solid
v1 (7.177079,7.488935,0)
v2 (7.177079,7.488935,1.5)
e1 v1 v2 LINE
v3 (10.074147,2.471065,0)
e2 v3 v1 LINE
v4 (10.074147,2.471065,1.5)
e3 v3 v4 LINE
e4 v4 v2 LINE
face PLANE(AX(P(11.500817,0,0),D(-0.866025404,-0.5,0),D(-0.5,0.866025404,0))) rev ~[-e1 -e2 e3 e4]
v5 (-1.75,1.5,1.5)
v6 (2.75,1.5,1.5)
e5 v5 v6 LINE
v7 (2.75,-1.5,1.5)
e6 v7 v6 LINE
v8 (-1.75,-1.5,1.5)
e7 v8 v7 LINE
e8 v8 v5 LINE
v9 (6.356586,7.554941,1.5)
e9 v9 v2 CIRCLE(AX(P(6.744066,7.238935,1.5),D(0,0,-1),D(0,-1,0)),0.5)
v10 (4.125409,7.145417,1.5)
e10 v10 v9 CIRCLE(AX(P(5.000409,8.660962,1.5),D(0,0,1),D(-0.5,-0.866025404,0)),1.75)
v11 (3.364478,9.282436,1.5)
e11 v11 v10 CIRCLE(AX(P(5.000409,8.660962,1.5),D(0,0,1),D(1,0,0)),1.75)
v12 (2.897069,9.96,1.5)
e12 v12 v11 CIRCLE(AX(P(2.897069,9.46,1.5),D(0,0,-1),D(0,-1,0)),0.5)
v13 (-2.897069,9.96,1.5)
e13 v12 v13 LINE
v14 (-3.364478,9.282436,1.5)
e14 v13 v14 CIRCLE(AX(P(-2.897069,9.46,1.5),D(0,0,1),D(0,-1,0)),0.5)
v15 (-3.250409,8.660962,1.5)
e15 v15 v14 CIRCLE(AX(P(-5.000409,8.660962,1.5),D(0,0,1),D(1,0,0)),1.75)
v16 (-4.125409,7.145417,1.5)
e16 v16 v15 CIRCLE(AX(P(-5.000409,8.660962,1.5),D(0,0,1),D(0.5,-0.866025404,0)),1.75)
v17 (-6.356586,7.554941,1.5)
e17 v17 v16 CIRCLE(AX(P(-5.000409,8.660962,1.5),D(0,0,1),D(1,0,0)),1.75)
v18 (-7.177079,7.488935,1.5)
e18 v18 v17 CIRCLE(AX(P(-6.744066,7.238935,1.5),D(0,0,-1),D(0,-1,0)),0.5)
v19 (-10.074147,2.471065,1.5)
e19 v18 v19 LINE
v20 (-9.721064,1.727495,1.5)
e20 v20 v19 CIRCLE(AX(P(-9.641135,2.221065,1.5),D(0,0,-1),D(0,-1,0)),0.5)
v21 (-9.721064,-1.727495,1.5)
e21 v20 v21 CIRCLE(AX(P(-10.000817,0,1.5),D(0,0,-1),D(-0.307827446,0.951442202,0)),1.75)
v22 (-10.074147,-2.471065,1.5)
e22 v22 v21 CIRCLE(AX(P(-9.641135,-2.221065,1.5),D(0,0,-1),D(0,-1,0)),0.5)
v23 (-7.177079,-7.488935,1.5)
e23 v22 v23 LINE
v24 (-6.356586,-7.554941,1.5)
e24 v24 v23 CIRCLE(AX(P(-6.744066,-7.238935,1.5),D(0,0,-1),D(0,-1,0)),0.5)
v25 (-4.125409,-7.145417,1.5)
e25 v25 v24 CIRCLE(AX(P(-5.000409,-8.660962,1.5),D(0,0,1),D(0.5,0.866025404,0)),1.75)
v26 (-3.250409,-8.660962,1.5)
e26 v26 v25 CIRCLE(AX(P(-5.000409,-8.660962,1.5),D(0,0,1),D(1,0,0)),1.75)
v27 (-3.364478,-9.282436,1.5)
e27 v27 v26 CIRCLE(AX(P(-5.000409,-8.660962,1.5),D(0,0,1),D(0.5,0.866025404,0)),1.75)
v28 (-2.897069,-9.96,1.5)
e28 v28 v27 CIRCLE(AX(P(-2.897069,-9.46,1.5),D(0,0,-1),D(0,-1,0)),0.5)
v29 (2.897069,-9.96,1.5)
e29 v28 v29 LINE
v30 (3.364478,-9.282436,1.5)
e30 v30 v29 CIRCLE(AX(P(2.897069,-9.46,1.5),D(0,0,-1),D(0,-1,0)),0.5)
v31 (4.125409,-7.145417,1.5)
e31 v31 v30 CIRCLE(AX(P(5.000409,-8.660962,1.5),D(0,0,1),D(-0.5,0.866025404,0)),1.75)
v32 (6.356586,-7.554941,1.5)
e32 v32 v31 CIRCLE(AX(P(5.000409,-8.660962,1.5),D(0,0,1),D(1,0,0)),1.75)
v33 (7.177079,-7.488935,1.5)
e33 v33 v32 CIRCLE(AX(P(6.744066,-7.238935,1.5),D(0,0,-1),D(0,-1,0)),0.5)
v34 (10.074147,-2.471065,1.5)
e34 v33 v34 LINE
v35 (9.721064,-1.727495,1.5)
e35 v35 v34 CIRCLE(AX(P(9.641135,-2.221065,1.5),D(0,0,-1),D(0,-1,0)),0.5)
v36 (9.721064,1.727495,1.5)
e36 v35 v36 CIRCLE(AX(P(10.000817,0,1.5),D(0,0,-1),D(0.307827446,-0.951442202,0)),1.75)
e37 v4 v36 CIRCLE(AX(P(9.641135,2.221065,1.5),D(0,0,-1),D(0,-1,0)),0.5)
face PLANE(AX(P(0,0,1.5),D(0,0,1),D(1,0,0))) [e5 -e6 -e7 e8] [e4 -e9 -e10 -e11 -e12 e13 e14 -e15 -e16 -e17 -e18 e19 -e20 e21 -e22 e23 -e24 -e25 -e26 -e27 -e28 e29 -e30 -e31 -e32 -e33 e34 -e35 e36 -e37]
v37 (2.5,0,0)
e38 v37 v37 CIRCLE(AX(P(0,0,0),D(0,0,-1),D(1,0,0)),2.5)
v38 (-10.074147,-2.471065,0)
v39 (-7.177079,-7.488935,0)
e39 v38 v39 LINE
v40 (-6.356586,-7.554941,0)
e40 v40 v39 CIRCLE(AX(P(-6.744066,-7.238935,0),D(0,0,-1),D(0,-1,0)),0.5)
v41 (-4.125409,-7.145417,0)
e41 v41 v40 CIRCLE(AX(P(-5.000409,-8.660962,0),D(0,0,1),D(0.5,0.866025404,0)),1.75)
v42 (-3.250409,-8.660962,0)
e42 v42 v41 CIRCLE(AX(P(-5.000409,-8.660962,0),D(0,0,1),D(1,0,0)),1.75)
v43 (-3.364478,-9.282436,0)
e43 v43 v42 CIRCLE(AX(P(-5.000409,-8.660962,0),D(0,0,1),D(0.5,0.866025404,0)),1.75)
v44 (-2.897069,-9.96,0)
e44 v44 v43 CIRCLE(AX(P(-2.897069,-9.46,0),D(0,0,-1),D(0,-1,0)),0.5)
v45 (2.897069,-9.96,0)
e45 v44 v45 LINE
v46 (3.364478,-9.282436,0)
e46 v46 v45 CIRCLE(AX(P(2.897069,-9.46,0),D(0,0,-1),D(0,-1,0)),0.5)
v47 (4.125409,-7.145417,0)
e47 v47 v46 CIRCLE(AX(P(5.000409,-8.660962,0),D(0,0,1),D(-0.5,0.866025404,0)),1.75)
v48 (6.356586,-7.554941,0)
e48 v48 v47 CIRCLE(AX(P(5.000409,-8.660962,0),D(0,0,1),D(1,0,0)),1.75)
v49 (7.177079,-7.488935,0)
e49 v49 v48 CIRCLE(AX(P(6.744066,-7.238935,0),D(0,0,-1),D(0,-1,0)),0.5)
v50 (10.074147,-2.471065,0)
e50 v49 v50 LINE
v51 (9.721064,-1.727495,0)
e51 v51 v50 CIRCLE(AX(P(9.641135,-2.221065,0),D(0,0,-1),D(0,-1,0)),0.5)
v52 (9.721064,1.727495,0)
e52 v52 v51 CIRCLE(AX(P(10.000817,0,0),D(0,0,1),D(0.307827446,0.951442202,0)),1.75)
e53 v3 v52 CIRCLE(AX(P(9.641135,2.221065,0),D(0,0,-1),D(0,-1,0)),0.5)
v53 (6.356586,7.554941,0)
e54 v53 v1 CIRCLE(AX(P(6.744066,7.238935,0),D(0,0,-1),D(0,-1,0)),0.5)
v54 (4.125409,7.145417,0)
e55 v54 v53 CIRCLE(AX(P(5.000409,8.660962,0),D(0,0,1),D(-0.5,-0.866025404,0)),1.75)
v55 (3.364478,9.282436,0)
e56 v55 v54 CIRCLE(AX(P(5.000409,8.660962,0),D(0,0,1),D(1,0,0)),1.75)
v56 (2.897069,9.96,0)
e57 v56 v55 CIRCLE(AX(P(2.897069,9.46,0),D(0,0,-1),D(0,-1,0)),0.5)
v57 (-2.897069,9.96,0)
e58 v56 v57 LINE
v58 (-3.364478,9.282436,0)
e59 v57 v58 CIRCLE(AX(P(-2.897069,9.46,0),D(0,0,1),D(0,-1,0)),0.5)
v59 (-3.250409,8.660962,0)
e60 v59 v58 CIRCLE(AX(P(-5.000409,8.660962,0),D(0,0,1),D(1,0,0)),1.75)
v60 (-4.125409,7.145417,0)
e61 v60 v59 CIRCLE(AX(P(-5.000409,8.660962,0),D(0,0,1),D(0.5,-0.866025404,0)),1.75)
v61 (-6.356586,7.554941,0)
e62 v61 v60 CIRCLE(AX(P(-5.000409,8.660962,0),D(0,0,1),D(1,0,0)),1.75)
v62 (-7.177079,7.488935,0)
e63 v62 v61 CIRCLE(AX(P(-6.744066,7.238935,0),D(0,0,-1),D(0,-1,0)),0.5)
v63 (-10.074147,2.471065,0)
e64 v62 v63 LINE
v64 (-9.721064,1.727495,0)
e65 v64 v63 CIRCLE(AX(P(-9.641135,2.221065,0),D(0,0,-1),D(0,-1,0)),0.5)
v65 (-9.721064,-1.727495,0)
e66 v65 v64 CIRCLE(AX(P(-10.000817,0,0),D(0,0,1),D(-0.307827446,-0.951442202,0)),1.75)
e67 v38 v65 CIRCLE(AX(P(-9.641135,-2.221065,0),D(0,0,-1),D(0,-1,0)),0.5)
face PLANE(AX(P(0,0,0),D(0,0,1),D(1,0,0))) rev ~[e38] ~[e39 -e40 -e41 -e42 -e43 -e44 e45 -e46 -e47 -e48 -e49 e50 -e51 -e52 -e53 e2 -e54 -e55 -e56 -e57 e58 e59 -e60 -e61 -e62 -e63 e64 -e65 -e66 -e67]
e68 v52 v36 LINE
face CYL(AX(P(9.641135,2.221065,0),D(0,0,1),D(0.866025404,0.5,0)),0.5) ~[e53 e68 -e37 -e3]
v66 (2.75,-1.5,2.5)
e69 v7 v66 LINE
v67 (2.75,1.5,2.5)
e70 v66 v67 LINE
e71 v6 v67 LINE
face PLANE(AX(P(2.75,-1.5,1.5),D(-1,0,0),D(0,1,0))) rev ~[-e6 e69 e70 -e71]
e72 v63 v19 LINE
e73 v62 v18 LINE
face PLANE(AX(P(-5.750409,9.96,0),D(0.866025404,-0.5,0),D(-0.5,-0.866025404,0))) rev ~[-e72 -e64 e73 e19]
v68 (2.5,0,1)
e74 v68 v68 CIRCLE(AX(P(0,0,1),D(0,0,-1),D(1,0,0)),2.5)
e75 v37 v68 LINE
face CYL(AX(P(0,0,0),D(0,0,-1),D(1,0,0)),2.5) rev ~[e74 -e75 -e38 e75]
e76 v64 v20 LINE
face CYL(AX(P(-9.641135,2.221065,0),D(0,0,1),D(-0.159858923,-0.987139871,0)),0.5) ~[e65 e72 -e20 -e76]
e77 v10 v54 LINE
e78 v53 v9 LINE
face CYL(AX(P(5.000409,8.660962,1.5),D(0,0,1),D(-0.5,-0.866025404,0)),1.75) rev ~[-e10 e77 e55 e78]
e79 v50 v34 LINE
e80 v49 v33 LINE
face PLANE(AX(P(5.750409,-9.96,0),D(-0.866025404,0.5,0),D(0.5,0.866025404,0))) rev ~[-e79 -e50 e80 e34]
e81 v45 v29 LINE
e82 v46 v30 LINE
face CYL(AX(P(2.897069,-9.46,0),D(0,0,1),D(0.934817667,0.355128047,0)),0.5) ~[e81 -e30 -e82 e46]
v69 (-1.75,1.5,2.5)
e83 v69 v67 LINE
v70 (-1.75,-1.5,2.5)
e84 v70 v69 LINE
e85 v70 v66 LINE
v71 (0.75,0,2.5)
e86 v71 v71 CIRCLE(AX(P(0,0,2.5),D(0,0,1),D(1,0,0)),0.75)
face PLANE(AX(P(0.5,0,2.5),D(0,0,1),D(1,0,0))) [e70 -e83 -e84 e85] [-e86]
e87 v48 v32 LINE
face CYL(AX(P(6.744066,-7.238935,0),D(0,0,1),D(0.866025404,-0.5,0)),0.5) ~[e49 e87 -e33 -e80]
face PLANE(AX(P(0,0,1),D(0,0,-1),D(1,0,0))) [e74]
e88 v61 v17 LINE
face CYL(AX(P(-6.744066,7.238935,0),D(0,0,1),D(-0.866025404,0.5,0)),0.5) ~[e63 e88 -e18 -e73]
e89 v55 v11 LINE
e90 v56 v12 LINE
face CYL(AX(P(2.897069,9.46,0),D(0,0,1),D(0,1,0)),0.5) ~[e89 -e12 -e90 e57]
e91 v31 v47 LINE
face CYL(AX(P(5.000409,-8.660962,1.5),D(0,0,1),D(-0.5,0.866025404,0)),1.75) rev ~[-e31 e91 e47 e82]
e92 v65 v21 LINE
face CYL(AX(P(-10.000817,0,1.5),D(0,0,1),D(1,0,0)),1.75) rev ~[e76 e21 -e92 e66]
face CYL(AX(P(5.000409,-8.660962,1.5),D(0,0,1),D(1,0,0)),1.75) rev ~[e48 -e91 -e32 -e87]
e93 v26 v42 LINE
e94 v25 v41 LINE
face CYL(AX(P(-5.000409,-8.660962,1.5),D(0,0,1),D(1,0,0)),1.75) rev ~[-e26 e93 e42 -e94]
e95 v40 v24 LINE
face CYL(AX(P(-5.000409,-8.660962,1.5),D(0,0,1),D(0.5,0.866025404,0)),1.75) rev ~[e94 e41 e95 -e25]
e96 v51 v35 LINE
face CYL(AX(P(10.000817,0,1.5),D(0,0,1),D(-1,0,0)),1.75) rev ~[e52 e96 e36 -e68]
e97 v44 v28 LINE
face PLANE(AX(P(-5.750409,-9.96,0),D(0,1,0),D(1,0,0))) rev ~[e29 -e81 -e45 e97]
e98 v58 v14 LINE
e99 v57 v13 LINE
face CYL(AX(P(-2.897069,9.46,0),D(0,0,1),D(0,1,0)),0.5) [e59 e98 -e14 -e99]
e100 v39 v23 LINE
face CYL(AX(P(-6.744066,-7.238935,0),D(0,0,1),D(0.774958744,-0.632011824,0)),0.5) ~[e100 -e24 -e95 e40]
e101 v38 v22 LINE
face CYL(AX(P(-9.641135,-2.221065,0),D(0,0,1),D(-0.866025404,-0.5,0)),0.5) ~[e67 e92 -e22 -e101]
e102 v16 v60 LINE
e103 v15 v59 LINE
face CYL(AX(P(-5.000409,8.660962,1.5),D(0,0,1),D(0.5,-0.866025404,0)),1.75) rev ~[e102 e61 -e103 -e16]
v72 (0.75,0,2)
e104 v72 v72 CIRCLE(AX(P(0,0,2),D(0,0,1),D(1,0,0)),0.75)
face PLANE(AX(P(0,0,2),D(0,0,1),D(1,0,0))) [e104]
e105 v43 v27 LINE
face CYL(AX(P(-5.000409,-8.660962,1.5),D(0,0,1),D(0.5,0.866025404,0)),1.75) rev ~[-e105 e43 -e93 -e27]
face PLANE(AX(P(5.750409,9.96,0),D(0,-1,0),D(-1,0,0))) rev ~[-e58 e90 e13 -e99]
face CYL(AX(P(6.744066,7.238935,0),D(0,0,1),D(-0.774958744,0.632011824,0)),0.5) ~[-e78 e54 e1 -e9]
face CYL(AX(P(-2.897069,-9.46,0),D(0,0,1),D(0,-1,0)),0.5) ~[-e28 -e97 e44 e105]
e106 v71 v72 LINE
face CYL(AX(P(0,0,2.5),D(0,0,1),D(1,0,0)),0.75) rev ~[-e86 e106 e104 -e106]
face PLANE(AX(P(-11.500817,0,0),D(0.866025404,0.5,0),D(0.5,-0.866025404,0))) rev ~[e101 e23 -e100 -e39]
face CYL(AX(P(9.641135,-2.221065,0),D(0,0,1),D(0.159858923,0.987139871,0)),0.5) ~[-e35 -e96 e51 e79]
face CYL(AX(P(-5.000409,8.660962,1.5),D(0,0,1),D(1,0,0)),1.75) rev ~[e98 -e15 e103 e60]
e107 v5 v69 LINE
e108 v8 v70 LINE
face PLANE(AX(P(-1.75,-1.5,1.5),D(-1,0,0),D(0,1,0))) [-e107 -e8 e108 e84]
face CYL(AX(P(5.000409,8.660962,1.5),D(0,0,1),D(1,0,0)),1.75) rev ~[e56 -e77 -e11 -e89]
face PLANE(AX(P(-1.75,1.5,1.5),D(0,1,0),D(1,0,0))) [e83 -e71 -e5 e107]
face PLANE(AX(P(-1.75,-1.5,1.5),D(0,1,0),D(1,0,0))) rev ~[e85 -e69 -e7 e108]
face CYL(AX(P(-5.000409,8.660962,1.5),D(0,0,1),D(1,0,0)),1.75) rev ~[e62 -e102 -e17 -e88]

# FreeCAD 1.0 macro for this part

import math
import FreeCAD as App
import Part
import Sketcher

V = App.Vector
Q = App.Units.Quantity


def edges_at(feature, points):
    """Names of the edges that pass closest to the given points."""
    edges = feature.Shape.Edges
    near = lambda p: min(range(len(edges)), key=lambda i: edges[i].distToShape(Part.Vertex(*p))[0])
    return sorted({f"Edge{near(p) + 1}" for p in points})

doc = App.newDocument("Part")
body = doc.addObject("PartDesign::Body", "Body")

# Sketch on XY plane
sketch1 = body.newObject("Sketcher::SketchObject", "Sketch")
sketch1.AttachmentSupport = (doc.getObject("XY_Plane"), [""])
sketch1.MapMode = "FlatFace"
sketch1.addGeometry(Part.LineSegment(V(6, 10, 0), V(-6, 10, 0)), False)
sketch1.addGeometry(Part.LineSegment(V(-6, 10, 0), V(-12, 0, 0)), False)
sketch1.addGeometry(Part.LineSegment(V(-12, 0, 0), V(-6, -10, 0)), False)
sketch1.addGeometry(Part.LineSegment(V(-6, -10, 0), V(6, -10, 0)), False)
sketch1.addGeometry(Part.LineSegment(V(6, -10, 0), V(12, 0, 0)), False)
sketch1.addGeometry(Part.LineSegment(V(12, 0, 0), V(6, 10, 0)), False)
sketch1.addConstraint(Sketcher.Constraint("Coincident", 0, 2, 1, 1))
sketch1.addConstraint(Sketcher.Constraint("Coincident", 1, 2, 2, 1))
sketch1.addConstraint(Sketcher.Constraint("Coincident", 2, 2, 3, 1))
sketch1.addConstraint(Sketcher.Constraint("Coincident", 3, 2, 4, 1))
sketch1.addConstraint(Sketcher.Constraint("Coincident", 4, 2, 5, 1))
sketch1.addConstraint(Sketcher.Constraint("Coincident", 5, 2, 0, 1))
sketch1.addConstraint(Sketcher.Constraint("Horizontal", 0))
sketch1.addConstraint(Sketcher.Constraint("Horizontal", 3))
sketch1.addConstraint(Sketcher.Constraint("Symmetric", 0, 2, 3, 2, -1, 1))
sketch1.addConstraint(Sketcher.Constraint("Symmetric", 1, 2, 4, 2, -1, 1))
sketch1.addConstraint(Sketcher.Constraint("PointOnObject", 1, 2, -1))
sketch1.addConstraint(Sketcher.Constraint("Parallel", 2, 5))
sketch1.addConstraint(Sketcher.Constraint("Vertical", 0, 2, 2, 2))
sketch1.addConstraint(Sketcher.Constraint("Angle", 1, Q("-120 deg")))
sketch1.addConstraint(Sketcher.Constraint("DistanceY", -1, 1, 0, 2, Q("9.96 mm")))
sketch1.addConstraint(Sketcher.Constraint("DistanceX", 0, 2, 0, 1, Q("11.500817 mm")))
pad1 = body.newObject("PartDesign::Pad", "Pad")
pad1.Profile = sketch1
pad1.Length = 1.5

# Sketch on XY plane
sketch2 = body.newObject("Sketcher::SketchObject", "Sketch001")
sketch2.AttachmentSupport = (doc.getObject("XY_Plane"), [""])
sketch2.MapMode = "FlatFace"
sketch2.AttachmentOffset = App.Placement(V(0, 0, 1.5), App.Rotation())
sketch2.addGeometry(Part.ArcOfCircle(Part.Circle(V(5, 8.7, 0), V(0, 0, 1), 1.8), math.radians(0), math.radians(240)), False)
sketch2.addGeometry(Part.ArcOfCircle(Part.Circle(V(5, 8.7, 0), V(0, 0, 1), 1.8), math.radians(-120), math.radians(0)), False)
sketch2.addGeometry(Part.Circle(V(10, 0, 0), V(0, 0, 1), 1.8), False)
sketch2.addGeometry(Part.ArcOfCircle(Part.Circle(V(5, -8.7, 0), V(0, 0, 1), 1.8), math.radians(0), math.radians(120)), False)
sketch2.addGeometry(Part.ArcOfCircle(Part.Circle(V(5, -8.7, 0), V(0, 0, 1), 1.8), math.radians(120), math.radians(360)), False)
sketch2.addGeometry(Part.ArcOfCircle(Part.Circle(V(-5, -8.7, 0), V(0, 0, 1), 1.8), math.radians(0), math.radians(60)), False)
sketch2.addGeometry(Part.ArcOfCircle(Part.Circle(V(-5, -8.7, 0), V(0, 0, 1), 1.8), math.radians(60), math.radians(360)), False)
sketch2.addGeometry(Part.Circle(V(-10, 0, 0), V(0, 0, 1), 1.8), False)
sketch2.addGeometry(Part.ArcOfCircle(Part.Circle(V(-5, 8.7, 0), V(0, 0, 1), 1.8), math.radians(0), math.radians(300)), False)
sketch2.addGeometry(Part.ArcOfCircle(Part.Circle(V(-5, 8.7, 0), V(0, 0, 1), 1.8), math.radians(-60), math.radians(0)), False)
sketch2.addConstraint(Sketcher.Constraint("Tangent", 0, 1, 1, 2))
sketch2.addConstraint(Sketcher.Constraint("Coincident", 1, 1, 0, 2))
sketch2.addConstraint(Sketcher.Constraint("Tangent", 3, 1, 4, 2))
sketch2.addConstraint(Sketcher.Constraint("Coincident", 4, 1, 3, 2))
sketch2.addConstraint(Sketcher.Constraint("Tangent", 5, 1, 6, 2))
sketch2.addConstraint(Sketcher.Constraint("Coincident", 6, 1, 5, 2))
sketch2.addConstraint(Sketcher.Constraint("Tangent", 8, 1, 9, 2))
sketch2.addConstraint(Sketcher.Constraint("Coincident", 9, 1, 8, 2))
sketch2.addConstraint(Sketcher.Constraint("Equal", 1, 2))
sketch2.addConstraint(Sketcher.Constraint("Equal", 2, 3))
sketch2.addConstraint(Sketcher.Constraint("Equal", 4, 5))
sketch2.addConstraint(Sketcher.Constraint("Equal", 6, 7))
sketch2.addConstraint(Sketcher.Constraint("Equal", 7, 8))
sketch2.addConstraint(Sketcher.Constraint("Symmetric", 0, 3, 5, 3, -1, 1))
sketch2.addConstraint(Sketcher.Constraint("Symmetric", 2, 3, 7, 3, -1, 1))
sketch2.addConstraint(Sketcher.Constraint("Symmetric", 3, 3, 8, 3, -1, 1))
sketch2.addConstraint(Sketcher.Constraint("Symmetric", 3, 3, 5, 3, -2))
sketch2.addConstraint(Sketcher.Constraint("PointOnObject", 2, 3, -1))
sketch2.addConstraint(Sketcher.Constraint("Horizontal", 9, 3, 0, 1))
sketch2.addConstraint(Sketcher.Constraint("Horizontal", 6, 3, 3, 1))
sketch2.addConstraint(Sketcher.Constraint("Horizontal", 3, 1, 5, 1))
sketch2.addConstraint(Sketcher.Constraint("Horizontal", 4, 1, 6, 1))
sketch2.addConstraint(Sketcher.Constraint("Horizontal", 0, 1, 8, 1))
sketch2.addConstraint(Sketcher.Constraint("Horizontal", 1, 1, 9, 1))
sketch2.addConstraint(Sketcher.Constraint("Vertical", 1, 1, 4, 1))
sketch2.addConstraint(Sketcher.Constraint("Diameter", 2, Q("3.5 mm")))
sketch2.addConstraint(Sketcher.Constraint("DistanceX", 1, 1, 0, 3, Q("0.875 mm")))
sketch2.addConstraint(Sketcher.Constraint("DistanceX", -1, 1, 0, 3, Q("5.000409 mm")))
sketch2.addConstraint(Sketcher.Constraint("DistanceY", -1, 1, 0, 3, Q("8.660962 mm")))
sketch2.addConstraint(Sketcher.Constraint("DistanceX", 0, 3, 2, 3, Q("5.000409 mm")))
pocket1 = body.newObject("PartDesign::Pocket", "Pocket")
pocket1.Profile = sketch2
pocket1.Length = 25
doc.recompute()

fillet = body.newObject("PartDesign::Fillet", "Fillet")
fillet.Base = (pocket1, edges_at(pocket1, [
    (-3.828, 9.96, 0.75),
    (-6.712, 8.295, 0.75),
    (3.828, 9.96, 0.75),
    (6.712, 8.295, 0.75),
    (-10.54, 1.665, 0.75),
    (-10.54, -1.665, 0.75),
    (-3.828, -9.96, 0.75),
    (-6.712, -8.295, 0.75),
    (3.828, -9.96, 0.75),
    (6.712, -8.295, 0.75),
    (10.54, 1.665, 0.75),
    (10.54, -1.665, 0.75),
]))
fillet.Radius = 0.5

# Sketch on XY plane
sketch3 = body.newObject("Sketcher::SketchObject", "Sketch002")
sketch3.AttachmentSupport = (doc.getObject("XY_Plane"), [""])
sketch3.MapMode = "FlatFace"
sketch3.addGeometry(Part.Circle(V(0, 0, 0), V(0, 0, 1), 2.5), False)
sketch3.addConstraint(Sketcher.Constraint("Coincident", 0, 3, -1, 1))
sketch3.addConstraint(Sketcher.Constraint("Diameter", 0, Q("5 mm")))
pocket2 = body.newObject("PartDesign::Pocket", "Pocket001")
pocket2.Profile = sketch3
pocket2.Length = 1
pocket2.Reversed = True

# Sketch on XY plane
sketch4 = body.newObject("Sketcher::SketchObject", "Sketch003")
sketch4.AttachmentSupport = (doc.getObject("XY_Plane"), [""])
sketch4.MapMode = "FlatFace"
sketch4.AttachmentOffset = App.Placement(V(0, 0, 1.5), App.Rotation())
sketch4.addGeometry(Part.LineSegment(V(-1.8, 1.5, 0), V(-1.8, -1.5, 0)), False)
sketch4.addGeometry(Part.LineSegment(V(-1.8, -1.5, 0), V(2.8, -1.5, 0)), False)
sketch4.addGeometry(Part.LineSegment(V(2.8, -1.5, 0), V(2.8, 1.5, 0)), False)
sketch4.addGeometry(Part.LineSegment(V(2.8, 1.5, 0), V(-1.8, 1.5, 0)), False)
sketch4.addConstraint(Sketcher.Constraint("Coincident", 0, 2, 1, 1))
sketch4.addConstraint(Sketcher.Constraint("Coincident", 1, 2, 2, 1))
sketch4.addConstraint(Sketcher.Constraint("Coincident", 2, 2, 3, 1))
sketch4.addConstraint(Sketcher.Constraint("Coincident", 3, 2, 0, 1))
sketch4.addConstraint(Sketcher.Constraint("Vertical", 0))
sketch4.addConstraint(Sketcher.Constraint("Horizontal", 1))
sketch4.addConstraint(Sketcher.Constraint("Vertical", 2))
sketch4.addConstraint(Sketcher.Constraint("Horizontal", 3))
sketch4.addConstraint(Sketcher.Constraint("DistanceY", 0, 2, 0, 1, Q("3 mm")))
sketch4.addConstraint(Sketcher.Constraint("DistanceX", 1, 1, 1, 2, Q("4.5 mm")))
sketch4.addConstraint(Sketcher.Constraint("DistanceY", 0, 2, -1, 1, Q("1.5 mm")))
sketch4.addConstraint(Sketcher.Constraint("DistanceX", 0, 2, -1, 1, Q("1.75 mm")))
pad2 = body.newObject("PartDesign::Pad", "Pad001")
pad2.Profile = sketch4
pad2.Length = 1

# Sketch on XY plane
sketch5 = body.newObject("Sketcher::SketchObject", "Sketch004")
sketch5.AttachmentSupport = (doc.getObject("XY_Plane"), [""])
sketch5.MapMode = "FlatFace"
sketch5.AttachmentOffset = App.Placement(V(0, 0, 2.5), App.Rotation())
sketch5.addGeometry(Part.Circle(V(0, 0, 0), V(0, 0, 1), 0.8), False)
sketch5.addConstraint(Sketcher.Constraint("Coincident", 0, 3, -1, 1))
sketch5.addConstraint(Sketcher.Constraint("Diameter", 0, Q("1.5 mm")))
pocket3 = body.newObject("PartDesign::Pocket", "Pocket002")
pocket3.Profile = sketch5
pocket3.Length = 0.5

doc.recompute()
